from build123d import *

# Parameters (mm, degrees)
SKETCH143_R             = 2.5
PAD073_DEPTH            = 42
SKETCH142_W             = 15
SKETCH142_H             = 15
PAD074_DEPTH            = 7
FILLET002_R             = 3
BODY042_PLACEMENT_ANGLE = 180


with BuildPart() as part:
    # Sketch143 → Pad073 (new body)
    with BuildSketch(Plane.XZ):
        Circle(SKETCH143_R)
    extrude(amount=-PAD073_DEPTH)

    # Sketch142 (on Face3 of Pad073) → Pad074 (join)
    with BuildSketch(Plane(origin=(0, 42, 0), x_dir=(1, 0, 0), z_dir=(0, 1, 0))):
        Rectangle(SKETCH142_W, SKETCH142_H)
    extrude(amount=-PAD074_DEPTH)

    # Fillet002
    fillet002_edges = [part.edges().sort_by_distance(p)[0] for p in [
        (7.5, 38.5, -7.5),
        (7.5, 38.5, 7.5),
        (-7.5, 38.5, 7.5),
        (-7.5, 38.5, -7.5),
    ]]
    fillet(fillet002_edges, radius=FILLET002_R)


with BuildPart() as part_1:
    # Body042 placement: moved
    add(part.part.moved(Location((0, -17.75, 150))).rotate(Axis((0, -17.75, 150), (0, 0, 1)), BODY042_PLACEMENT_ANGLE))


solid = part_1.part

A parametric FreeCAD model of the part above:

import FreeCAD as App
import Part
import Sketcher
from FreeCAD import Vector


def edges_at(feature, points):
    """Names of the edges that pass closest to the given points."""
    edges = feature.Shape.Edges
    near = lambda p: min(range(len(edges)), key=lambda i: edges[i].distToShape(Part.Vertex(*p))[0])
    return sorted({f"Edge{near(p) + 1}" for p in points})


def add_polygon(sketch, points):
    """Adds a closed chain of lines whose ends are joined by coincident constraints."""
    first, n = sketch.GeometryCount, len(points)
    for a, b in zip(points, points[1:] + points[:1]):
        sketch.addGeometry(Part.LineSegment(App.Vector(*a, 0), App.Vector(*b, 0)), False)
    for i in range(n):
        sketch.addConstraint(Sketcher.Constraint("Coincident", first + i, 2, first + (i + 1) % n, 1))

doc = App.newDocument("Part")
body = doc.addObject("PartDesign::Body", "Body")

# Sketch on XZ plane
sketch1 = doc.addObject("Sketcher::SketchObject", "Sketch")
body.addObject(sketch1)
sketch1.AttachmentSupport = (doc.XZ_Plane, [""])
sketch1.MapMode = "FlatFace"
sketch1.addGeometry(Part.Circle(Vector(0, 0, 0), Vector(0, 0, 1), 2.5), False)
sketch1.addConstraint(Sketcher.Constraint("Coincident", 0, 3, -1, 1))
sketch1.addConstraint(Sketcher.Constraint("Diameter", 0, 5.0))
pad1 = doc.addObject("PartDesign::Pad", "Pad")
body.addObject(pad1)
pad1.Profile = sketch1
pad1.Length = 42
pad1.Reversed = True

# Sketch on XZ plane
sketch2 = doc.addObject("Sketcher::SketchObject", "Sketch001")
body.addObject(sketch2)
sketch2.AttachmentSupport = (doc.XZ_Plane, [""])
sketch2.MapMode = "FlatFace"
sketch2.AttachmentOffset = App.Placement(Vector(0, 0, -42), App.Rotation())
add_polygon(sketch2, [(-8, -8), (-8, 8), (8, 8), (8, -8)])  # lines 0-3
sketch2.addConstraint(Sketcher.Constraint("Vertical", 0))
sketch2.addConstraint(Sketcher.Constraint("Horizontal", 1))
sketch2.addConstraint(Sketcher.Constraint("Vertical", 2))
sketch2.addConstraint(Sketcher.Constraint("Horizontal", 3))
sketch2.addConstraint(Sketcher.Constraint("Symmetric", 0, 2, 2, 2, -1, 1))
sketch2.addConstraint(Sketcher.Constraint("Equal", 3, 0))
sketch2.addConstraint(Sketcher.Constraint("DistanceX", 1, 1, 1, 2, 15.0))
pad2 = doc.addObject("PartDesign::Pad", "Pad001")
body.addObject(pad2)
pad2.Profile = sketch2
pad2.Length = 7
doc.recompute()

fillet = doc.addObject("PartDesign::Fillet", "Fillet")
body.addObject(fillet)
fillet.Base = (pad2, edges_at(pad2, [
    (7.5, 38.5, -7.5),
    (7.5, 38.5, 7.5),
    (-7.5, 38.5, 7.5),
    (-7.5, 38.5, -7.5),
]))
fillet.Radius = 3
body2 = doc.addObject("PartDesign::Body", "Body001")
doc.recompute()

body.Placement = App.Placement(Vector(0, -17.75, 150), App.Rotation(Vector(0, 0, 1), 180))
boolean = doc.addObject("PartDesign::Boolean", "Boolean")
body2.addObject(boolean)
boolean.Type = "Fuse"
boolean.addObjects([body])

doc.recompute()
